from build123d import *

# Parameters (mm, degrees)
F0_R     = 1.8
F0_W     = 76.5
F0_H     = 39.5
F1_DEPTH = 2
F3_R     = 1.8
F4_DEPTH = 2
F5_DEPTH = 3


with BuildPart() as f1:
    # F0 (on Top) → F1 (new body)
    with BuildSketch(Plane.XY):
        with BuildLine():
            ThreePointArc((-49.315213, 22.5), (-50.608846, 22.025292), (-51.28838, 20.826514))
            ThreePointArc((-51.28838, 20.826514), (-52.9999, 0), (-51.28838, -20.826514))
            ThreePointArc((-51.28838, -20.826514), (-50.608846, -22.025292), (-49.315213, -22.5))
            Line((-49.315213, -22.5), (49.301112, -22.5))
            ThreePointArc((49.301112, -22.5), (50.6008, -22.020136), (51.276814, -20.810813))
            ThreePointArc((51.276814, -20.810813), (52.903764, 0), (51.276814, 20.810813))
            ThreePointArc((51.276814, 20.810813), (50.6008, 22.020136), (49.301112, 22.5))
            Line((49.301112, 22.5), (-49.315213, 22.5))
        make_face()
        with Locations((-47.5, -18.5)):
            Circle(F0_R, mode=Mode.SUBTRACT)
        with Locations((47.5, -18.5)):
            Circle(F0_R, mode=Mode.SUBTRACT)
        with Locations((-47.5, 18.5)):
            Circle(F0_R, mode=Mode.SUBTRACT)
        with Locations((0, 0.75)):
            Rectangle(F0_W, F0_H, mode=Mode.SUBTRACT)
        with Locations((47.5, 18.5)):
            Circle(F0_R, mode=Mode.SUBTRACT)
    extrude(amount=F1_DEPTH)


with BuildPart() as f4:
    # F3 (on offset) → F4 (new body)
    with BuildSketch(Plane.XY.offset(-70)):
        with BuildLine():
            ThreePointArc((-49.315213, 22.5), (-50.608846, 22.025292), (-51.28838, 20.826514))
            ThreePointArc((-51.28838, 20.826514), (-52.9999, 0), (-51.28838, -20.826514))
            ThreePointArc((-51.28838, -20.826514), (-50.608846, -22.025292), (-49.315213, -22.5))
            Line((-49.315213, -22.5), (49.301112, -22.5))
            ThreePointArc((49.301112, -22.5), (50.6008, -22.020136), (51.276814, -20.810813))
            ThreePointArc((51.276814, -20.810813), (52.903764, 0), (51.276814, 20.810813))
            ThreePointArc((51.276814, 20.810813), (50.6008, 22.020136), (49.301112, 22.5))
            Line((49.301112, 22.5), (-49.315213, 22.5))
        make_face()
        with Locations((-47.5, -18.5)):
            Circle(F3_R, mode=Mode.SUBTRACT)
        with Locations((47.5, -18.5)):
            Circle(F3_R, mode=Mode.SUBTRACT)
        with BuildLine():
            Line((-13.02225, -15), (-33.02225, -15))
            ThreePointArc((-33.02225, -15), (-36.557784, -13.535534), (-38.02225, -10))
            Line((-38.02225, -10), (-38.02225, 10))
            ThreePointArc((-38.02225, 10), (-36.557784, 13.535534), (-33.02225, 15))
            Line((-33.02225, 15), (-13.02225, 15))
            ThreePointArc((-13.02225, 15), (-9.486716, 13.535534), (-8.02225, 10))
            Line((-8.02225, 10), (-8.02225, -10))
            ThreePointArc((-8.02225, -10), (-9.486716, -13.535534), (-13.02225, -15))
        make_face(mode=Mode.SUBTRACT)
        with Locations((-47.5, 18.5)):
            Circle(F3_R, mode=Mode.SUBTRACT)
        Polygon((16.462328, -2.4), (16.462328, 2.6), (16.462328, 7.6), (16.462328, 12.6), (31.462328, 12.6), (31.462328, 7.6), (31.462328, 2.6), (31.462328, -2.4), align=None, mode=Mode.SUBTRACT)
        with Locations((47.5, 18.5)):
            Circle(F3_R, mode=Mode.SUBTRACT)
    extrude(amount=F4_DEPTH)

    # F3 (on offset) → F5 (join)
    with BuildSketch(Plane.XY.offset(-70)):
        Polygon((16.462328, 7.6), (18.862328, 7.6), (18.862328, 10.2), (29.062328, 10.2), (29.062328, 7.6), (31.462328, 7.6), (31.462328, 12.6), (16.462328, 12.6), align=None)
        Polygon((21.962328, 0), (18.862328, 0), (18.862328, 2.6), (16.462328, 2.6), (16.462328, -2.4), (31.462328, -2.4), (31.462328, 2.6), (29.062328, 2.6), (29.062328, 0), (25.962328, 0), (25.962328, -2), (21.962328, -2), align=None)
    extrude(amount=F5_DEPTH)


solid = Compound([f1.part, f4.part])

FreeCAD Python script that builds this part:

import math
import FreeCAD as App
import Part
import Sketcher
Q = App.Units.Quantity


def add_polygon(sketch, points):
    """Adds a closed chain of lines whose ends are joined by coincident constraints."""
    first, n = sketch.GeometryCount, len(points)
    for a, b in zip(points, points[1:] + points[:1]):
        sketch.addGeometry(Part.LineSegment(App.Vector(*a, 0), App.Vector(*b, 0)), False)
    for i in range(n):
        sketch.addConstraint(Sketcher.Constraint("Coincident", first + i, 2, first + (i + 1) % n, 1))

doc = App.newDocument("Part")
body = doc.addObject("PartDesign::Body", "Body")

sketch1 = doc.addObject("Sketcher::SketchObject", "Sketch")
body.addObject(sketch1)
sketch1.AttachmentSupport = (doc.XY_Plane, [""])
sketch1.MapMode = "FlatFace"
sketch1.addGeometry(Part.ArcOfCircle(Part.Circle(App.Vector(-49.3, 20.5, 0), App.Vector(0, 0, 1), 2), math.radians(90), math.radians(171)), False)
sketch1.addGeometry(Part.ArcOfCircle(Part.Circle(App.Vector(74.6, 0, 0), App.Vector(0, 0, 1), 127.6), math.radians(170.6), math.radians(189.4)), False)
sketch1.addGeometry(Part.ArcOfCircle(Part.Circle(App.Vector(-49.3, -20.5, 0), App.Vector(0, 0, 1), 2), math.radians(-171), math.radians(-90)), False)
sketch1.addGeometry(Part.LineSegment(App.Vector(-49.3, -22.5, 0), App.Vector(49.3, -22.5, 0)), False)
sketch1.addGeometry(Part.ArcOfCircle(Part.Circle(App.Vector(49.3, -20.5, 0), App.Vector(0, 0, 1), 2), math.radians(-90), math.radians(-9)), False)
sketch1.addGeometry(Part.ArcOfCircle(Part.Circle(App.Vector(-81, 0, 0), App.Vector(0, 0, 1), 133.9), math.radians(-8.94), math.radians(8.94)), False)
sketch1.addGeometry(Part.ArcOfCircle(Part.Circle(App.Vector(49.3, 20.5, 0), App.Vector(0, 0, 1), 2), math.radians(9), math.radians(90)), False)
sketch1.addGeometry(Part.LineSegment(App.Vector(49.3, 22.5, 0), App.Vector(-49.3, 22.5, 0)), False)
sketch1.addGeometry(Part.Circle(App.Vector(-47.5, -18.5, 0), App.Vector(0, 0, 1), 1.8), False)
sketch1.addGeometry(Part.Circle(App.Vector(47.5, -18.5, 0), App.Vector(0, 0, 1), 1.8), False)
add_polygon(sketch1, [(38.2, -19), (-38.2, -19), (-38.2, 20.5), (38.2, 20.5)])
sketch1.addGeometry(Part.Circle(App.Vector(-47.5, 18.5, 0), App.Vector(0, 0, 1), 1.8), False)
sketch1.addGeometry(Part.Circle(App.Vector(47.5, 18.5, 0), App.Vector(0, 0, 1), 1.8), False)
sketch1.addConstraint([
    Sketcher.Constraint("Tangent", 0, 2, 1, 1),
    Sketcher.Constraint("Tangent", 1, 2, 2, 1),
    Sketcher.Constraint("Tangent", 2, 2, 3, 1),
    Sketcher.Constraint("Tangent", 3, 2, 4, 1),
    Sketcher.Constraint("Tangent", 4, 2, 5, 1),
    Sketcher.Constraint("Tangent", 5, 2, 6, 1),
    Sketcher.Constraint("Tangent", 6, 2, 7, 1),
    Sketcher.Constraint("Tangent", 7, 2, 0, 1),
    Sketcher.Constraint("Horizontal", 3),
    Sketcher.Constraint("Horizontal", 7),
    Sketcher.Constraint("Horizontal", 10),
    Sketcher.Constraint("Vertical", 11),
    Sketcher.Constraint("Horizontal", 12),
    Sketcher.Constraint("Vertical", 13),
    Sketcher.Constraint("Equal", 0, 2),
    Sketcher.Constraint("Equal", 2, 4),
    Sketcher.Constraint("Equal", 4, 6),
    Sketcher.Constraint("Equal", 8, 9),
    Sketcher.Constraint("Equal", 9, 14),
    Sketcher.Constraint("Equal", 14, 15),
    Sketcher.Constraint("Symmetric", 9, 3, 14, 3, -1, 1),
    Sketcher.Constraint("Symmetric", 8, 3, 15, 3, -1, 1),
    Sketcher.Constraint("Symmetric", 8, 3, 9, 3, -2),
    Sketcher.Constraint("Symmetric", 0, 3, 2, 3, -1),
    Sketcher.Constraint("PointOnObject", 5, 3, -1),
    Sketcher.Constraint("Horizontal", 6, 3, 11, 2),
    Sketcher.Constraint("Radius", 0, Q("1.999998 mm")),
    Sketcher.Constraint("Diameter", 8, Q("3.6 mm")),
    Sketcher.Constraint("DistanceX", 10, 2, 10, 1, Q("76.5 mm")),
    Sketcher.Constraint("DistanceY", 11, 1, 11, 2, Q("39.5 mm")),
    Sketcher.Constraint("DistanceY", 10, 2, -1, 1, Q("19 mm")),
    Sketcher.Constraint("DistanceY", 2, 3, 8, 3, Q("2.000002 mm")),
    Sketcher.Constraint("DistanceX", 8, 3, 9, 3, Q("95 mm")),
    Sketcher.Constraint("Radius", 5, Q("133.912199 mm")),
    Sketcher.Constraint("DistanceX", 10, 2, -1, 1, Q("38.25 mm")),
    Sketcher.Constraint("Radius", 1, Q("127.568765 mm")),
    Sketcher.Constraint("DistanceX", 5, 3, 1, 3, Q("155.5773 mm")),
    Sketcher.Constraint("DistanceX", 0, 2, -1, 1, Q("51.28838 mm")),
])
pad1 = doc.addObject("PartDesign::Pad", "Pad")
body.addObject(pad1)
pad1.Profile = sketch1
pad1.Length = 2
body2 = doc.addObject("PartDesign::Body", "Body001")

sketch2 = doc.addObject("Sketcher::SketchObject", "Sketch001")
body2.addObject(sketch2)
sketch2.AttachmentSupport = (doc.getObject("XY_Plane001"), [""])
sketch2.MapMode = "FlatFace"
sketch2.AttachmentOffset = App.Placement(App.Vector(0, 0, -70), App.Rotation())
sketch2.addGeometry(Part.ArcOfCircle(Part.Circle(App.Vector(-49.3, 20.5, 0), App.Vector(0, 0, 1), 2), math.radians(90), math.radians(171)), False)
sketch2.addGeometry(Part.ArcOfCircle(Part.Circle(App.Vector(74.6, 0, 0), App.Vector(0, 0, 1), 127.6), math.radians(170.6), math.radians(189.4)), False)
sketch2.addGeometry(Part.ArcOfCircle(Part.Circle(App.Vector(-49.3, -20.5, 0), App.Vector(0, 0, 1), 2), math.radians(-171), math.radians(-90)), False)
sketch2.addGeometry(Part.LineSegment(App.Vector(-49.3, -22.5, 0), App.Vector(49.3, -22.5, 0)), False)
sketch2.addGeometry(Part.ArcOfCircle(Part.Circle(App.Vector(49.3, -20.5, 0), App.Vector(0, 0, 1), 2), math.radians(-90), math.radians(-9)), False)
sketch2.addGeometry(Part.ArcOfCircle(Part.Circle(App.Vector(-81, 0, 0), App.Vector(0, 0, 1), 133.9), math.radians(-8.94), math.radians(8.94)), False)
sketch2.addGeometry(Part.ArcOfCircle(Part.Circle(App.Vector(49.3, 20.5, 0), App.Vector(0, 0, 1), 2), math.radians(9), math.radians(90)), False)
sketch2.addGeometry(Part.LineSegment(App.Vector(49.3, 22.5, 0), App.Vector(-49.3, 22.5, 0)), False)
sketch2.addGeometry(Part.Circle(App.Vector(-47.5, -18.5, 0), App.Vector(0, 0, 1), 1.8), False)
sketch2.addGeometry(Part.Circle(App.Vector(47.5, -18.5, 0), App.Vector(0, 0, 1), 1.8), False)
sketch2.addGeometry(Part.ArcOfCircle(Part.Circle(App.Vector(-13, -10, 0), App.Vector(0, 0, 1), 5), math.radians(-90), math.radians(0)), False)
sketch2.addGeometry(Part.LineSegment(App.Vector(-13, -15, 0), App.Vector(-33, -15, 0)), False)
sketch2.addGeometry(Part.ArcOfCircle(Part.Circle(App.Vector(-33, -10, 0), App.Vector(0, 0, 1), 5), math.radians(180), math.radians(270)), False)
sketch2.addGeometry(Part.LineSegment(App.Vector(-38, -10, 0), App.Vector(-38, 10, 0)), False)
sketch2.addGeometry(Part.ArcOfCircle(Part.Circle(App.Vector(-33, 10, 0), App.Vector(0, 0, 1), 5), math.radians(90), math.radians(180)), False)
sketch2.addGeometry(Part.LineSegment(App.Vector(-33, 15, 0), App.Vector(-13, 15, 0)), False)
sketch2.addGeometry(Part.ArcOfCircle(Part.Circle(App.Vector(-13, 10, 0), App.Vector(0, 0, 1), 5), math.radians(0), math.radians(90)), False)
sketch2.addGeometry(Part.LineSegment(App.Vector(-8, 10, 0), App.Vector(-8, -10, 0)), False)
sketch2.addGeometry(Part.Circle(App.Vector(-47.5, 18.5, 0), App.Vector(0, 0, 1), 1.8), False)
add_polygon(sketch2, [(31.5, -2.4), (16.5, -2.4), (16.5, 12.6), (31.5, 12.6)])
sketch2.addGeometry(Part.Circle(App.Vector(47.5, 18.5, 0), App.Vector(0, 0, 1), 1.8), False)
sketch2.addConstraint([
    Sketcher.Constraint("Tangent", 0, 2, 1, 1),
    Sketcher.Constraint("Tangent", 1, 2, 2, 1),
    Sketcher.Constraint("Tangent", 2, 2, 3, 1),
    Sketcher.Constraint("Tangent", 3, 2, 4, 1),
    Sketcher.Constraint("Tangent", 4, 2, 5, 1),
    Sketcher.Constraint("Tangent", 5, 2, 6, 1),
    Sketcher.Constraint("Tangent", 6, 2, 7, 1),
    Sketcher.Constraint("Tangent", 7, 2, 0, 1),
    Sketcher.Constraint("Tangent", 10, 1, 11, 1),
    Sketcher.Constraint("Tangent", 11, 2, 12, 2),
    Sketcher.Constraint("Tangent", 12, 1, 13, 1),
    Sketcher.Constraint("Tangent", 13, 2, 14, 2),
    Sketcher.Constraint("Tangent", 14, 1, 15, 1),
    Sketcher.Constraint("Tangent", 15, 2, 16, 2),
    Sketcher.Constraint("Tangent", 16, 1, 17, 1),
    Sketcher.Constraint("Tangent", 17, 2, 10, 2),
    Sketcher.Constraint("Horizontal", 3),
    Sketcher.Constraint("Horizontal", 7),
    Sketcher.Constraint("Horizontal", 11),
    Sketcher.Constraint("Vertical", 13),
    Sketcher.Constraint("Horizontal", 15),
    Sketcher.Constraint("Vertical", 17),
    Sketcher.Constraint("Horizontal", 19),
    Sketcher.Constraint("Vertical", 20),
    Sketcher.Constraint("Horizontal", 21),
    Sketcher.Constraint("Vertical", 22),
    Sketcher.Constraint("Equal", 0, 2),
    Sketcher.Constraint("Equal", 2, 4),
    Sketcher.Constraint("Equal", 4, 6),
    Sketcher.Constraint("Equal", 8, 9),
    Sketcher.Constraint("Equal", 10, 12),
    Sketcher.Constraint("Equal", 12, 14),
    Sketcher.Constraint("Equal", 14, 16),
    Sketcher.Constraint("Equal", 9, 18),
    Sketcher.Constraint("Equal", 18, 23),
    Sketcher.Constraint("Symmetric", 9, 3, 18, 3, -1, 1),
    Sketcher.Constraint("Symmetric", 8, 3, 23, 3, -1, 1),
    Sketcher.Constraint("Symmetric", 8, 3, 9, 3, -2),
    Sketcher.Constraint("Symmetric", 0, 3, 2, 3, -1),
    Sketcher.Constraint("PointOnObject", 5, 3, -1),
    Sketcher.Constraint("Equal", 15, 13),
    Sketcher.Constraint("Equal", 21, 20),
    Sketcher.Constraint("Radius", 0, Q("1.999998 mm")),
    Sketcher.Constraint("Radius", 10, Q("5 mm")),
    Sketcher.Constraint("Diameter", 8, Q("3.6 mm")),
    Sketcher.Constraint("DistanceX", 11, 2, 11, 1, Q("20 mm")),
    Sketcher.Constraint("DistanceX", 19, 2, 19, 1, Q("15 mm")),
    Sketcher.Constraint("DistanceY", 10, 3, -1, 1, Q("10 mm")),
    Sketcher.Constraint("DistanceY", 4, 3, 6, 3, Q("41 mm")),
    Sketcher.Constraint("DistanceY", 2, 3, 8, 3, Q("2.000002 mm")),
    Sketcher.Constraint("DistanceX", 8, 3, 9, 3, Q("95 mm")),
    Sketcher.Constraint("DistanceY", 19, 2, -1, 1, Q("2.4 mm")),
    Sketcher.Constraint("Radius", 5, Q("133.912199 mm")),
    Sketcher.Constraint("Radius", 1, Q("127.568765 mm")),
    Sketcher.Constraint("DistanceX", 5, 3, 1, 3, Q("155.5773 mm")),
    Sketcher.Constraint("DistanceX", 10, 3, -1, 1, Q("13.02225 mm")),
    Sketcher.Constraint("DistanceX", 0, 2, -1, 1, Q("51.28838 mm")),
    Sketcher.Constraint("DistanceX", 16, 1, 19, 2, Q("24.484578 mm")),
])
pad2 = doc.addObject("PartDesign::Pad", "Pad001")
body2.addObject(pad2)
pad2.Profile = sketch2
pad2.Length = 2

sketch3 = doc.addObject("Sketcher::SketchObject", "Sketch002")
body2.addObject(sketch3)
sketch3.AttachmentSupport = (doc.getObject("XY_Plane001"), [""])
sketch3.MapMode = "FlatFace"
sketch3.AttachmentOffset = App.Placement(App.Vector(0, 0, -70), App.Rotation())
add_polygon(sketch3, [(16.5, 7.6), (18.9, 7.6), (18.9, 10.2), (29.1, 10.2), (29.1, 7.6), (31.5, 7.6), (31.5, 12.6), (16.5, 12.6)])
add_polygon(sketch3, [(22, 0), (18.9, 0), (18.9, 2.6), (16.5, 2.6), (16.5, -2.4), (31.5, -2.4), (31.5, 2.6), (29.1, 2.6), (29.1, 0), (26, 0), (26, -2), (22, -2)])
sketch3.addConstraint([
    Sketcher.Constraint("Horizontal", 0),
    Sketcher.Constraint("Vertical", 1),
    Sketcher.Constraint("Horizontal", 2),
    Sketcher.Constraint("Vertical", 3),
    Sketcher.Constraint("Horizontal", 4),
    Sketcher.Constraint("Vertical", 5),
    Sketcher.Constraint("Horizontal", 6),
    Sketcher.Constraint("Vertical", 7),
    Sketcher.Constraint("Horizontal", 8),
    Sketcher.Constraint("Vertical", 9),
    Sketcher.Constraint("Horizontal", 10),
    Sketcher.Constraint("Vertical", 11),
    Sketcher.Constraint("Horizontal", 12),
    Sketcher.Constraint("Vertical", 13),
    Sketcher.Constraint("Horizontal", 14),
    Sketcher.Constraint("Vertical", 15),
    Sketcher.Constraint("Horizontal", 16),
    Sketcher.Constraint("Vertical", 17),
    Sketcher.Constraint("Horizontal", 18),
    Sketcher.Constraint("Vertical", 19),
    Sketcher.Constraint("PointOnObject", 8, 2, -1),
    Sketcher.Constraint("PointOnObject", 15, 2, -1),
    Sketcher.Constraint("Horizontal", 0, 2, 3, 2),
    Sketcher.Constraint("Horizontal", 10, 2, 13, 2),
    Sketcher.Constraint("Vertical", 1, 2, 8, 2),
    Sketcher.Constraint("Vertical", 7, 2, 10, 2),
    Sketcher.Constraint("Vertical", 5, 2, 12, 2),
    Sketcher.Constraint("Vertical", 3, 2, 14, 2),
    Sketcher.Constraint("Equal", 0, 4),
    Sketcher.Constraint("Equal", 8, 16),
    Sketcher.Constraint("Equal", 3, 9),
    Sketcher.Constraint("Equal", 7, 11),
    Sketcher.Constraint("DistanceX", 6, 2, 6, 1, Q("15 mm")),
    Sketcher.Constraint("DistanceX", 18, 2, 18, 1, Q("4 mm")),
    Sketcher.Constraint("DistanceY", 5, 1, 5, 2, Q("5 mm")),
    Sketcher.Constraint("DistanceY", 17, 2, 17, 1, Q("2 mm")),
    Sketcher.Constraint("DistanceX", 0, 1, 0, 2, Q("2.4 mm")),
    Sketcher.Constraint("DistanceY", 1, 1, 1, 2, Q("2.6 mm")),
    Sketcher.Constraint("DistanceY", 9, 2, 0, 2, Q("5 mm")),
    Sketcher.Constraint("DistanceX", -1, 1, 0, 2, Q("18.862328 mm")),
])
pad3 = doc.addObject("PartDesign::Pad", "Pad002")
body2.addObject(pad3)
pad3.Profile = sketch3
pad3.Length = 3

doc.recompute()
